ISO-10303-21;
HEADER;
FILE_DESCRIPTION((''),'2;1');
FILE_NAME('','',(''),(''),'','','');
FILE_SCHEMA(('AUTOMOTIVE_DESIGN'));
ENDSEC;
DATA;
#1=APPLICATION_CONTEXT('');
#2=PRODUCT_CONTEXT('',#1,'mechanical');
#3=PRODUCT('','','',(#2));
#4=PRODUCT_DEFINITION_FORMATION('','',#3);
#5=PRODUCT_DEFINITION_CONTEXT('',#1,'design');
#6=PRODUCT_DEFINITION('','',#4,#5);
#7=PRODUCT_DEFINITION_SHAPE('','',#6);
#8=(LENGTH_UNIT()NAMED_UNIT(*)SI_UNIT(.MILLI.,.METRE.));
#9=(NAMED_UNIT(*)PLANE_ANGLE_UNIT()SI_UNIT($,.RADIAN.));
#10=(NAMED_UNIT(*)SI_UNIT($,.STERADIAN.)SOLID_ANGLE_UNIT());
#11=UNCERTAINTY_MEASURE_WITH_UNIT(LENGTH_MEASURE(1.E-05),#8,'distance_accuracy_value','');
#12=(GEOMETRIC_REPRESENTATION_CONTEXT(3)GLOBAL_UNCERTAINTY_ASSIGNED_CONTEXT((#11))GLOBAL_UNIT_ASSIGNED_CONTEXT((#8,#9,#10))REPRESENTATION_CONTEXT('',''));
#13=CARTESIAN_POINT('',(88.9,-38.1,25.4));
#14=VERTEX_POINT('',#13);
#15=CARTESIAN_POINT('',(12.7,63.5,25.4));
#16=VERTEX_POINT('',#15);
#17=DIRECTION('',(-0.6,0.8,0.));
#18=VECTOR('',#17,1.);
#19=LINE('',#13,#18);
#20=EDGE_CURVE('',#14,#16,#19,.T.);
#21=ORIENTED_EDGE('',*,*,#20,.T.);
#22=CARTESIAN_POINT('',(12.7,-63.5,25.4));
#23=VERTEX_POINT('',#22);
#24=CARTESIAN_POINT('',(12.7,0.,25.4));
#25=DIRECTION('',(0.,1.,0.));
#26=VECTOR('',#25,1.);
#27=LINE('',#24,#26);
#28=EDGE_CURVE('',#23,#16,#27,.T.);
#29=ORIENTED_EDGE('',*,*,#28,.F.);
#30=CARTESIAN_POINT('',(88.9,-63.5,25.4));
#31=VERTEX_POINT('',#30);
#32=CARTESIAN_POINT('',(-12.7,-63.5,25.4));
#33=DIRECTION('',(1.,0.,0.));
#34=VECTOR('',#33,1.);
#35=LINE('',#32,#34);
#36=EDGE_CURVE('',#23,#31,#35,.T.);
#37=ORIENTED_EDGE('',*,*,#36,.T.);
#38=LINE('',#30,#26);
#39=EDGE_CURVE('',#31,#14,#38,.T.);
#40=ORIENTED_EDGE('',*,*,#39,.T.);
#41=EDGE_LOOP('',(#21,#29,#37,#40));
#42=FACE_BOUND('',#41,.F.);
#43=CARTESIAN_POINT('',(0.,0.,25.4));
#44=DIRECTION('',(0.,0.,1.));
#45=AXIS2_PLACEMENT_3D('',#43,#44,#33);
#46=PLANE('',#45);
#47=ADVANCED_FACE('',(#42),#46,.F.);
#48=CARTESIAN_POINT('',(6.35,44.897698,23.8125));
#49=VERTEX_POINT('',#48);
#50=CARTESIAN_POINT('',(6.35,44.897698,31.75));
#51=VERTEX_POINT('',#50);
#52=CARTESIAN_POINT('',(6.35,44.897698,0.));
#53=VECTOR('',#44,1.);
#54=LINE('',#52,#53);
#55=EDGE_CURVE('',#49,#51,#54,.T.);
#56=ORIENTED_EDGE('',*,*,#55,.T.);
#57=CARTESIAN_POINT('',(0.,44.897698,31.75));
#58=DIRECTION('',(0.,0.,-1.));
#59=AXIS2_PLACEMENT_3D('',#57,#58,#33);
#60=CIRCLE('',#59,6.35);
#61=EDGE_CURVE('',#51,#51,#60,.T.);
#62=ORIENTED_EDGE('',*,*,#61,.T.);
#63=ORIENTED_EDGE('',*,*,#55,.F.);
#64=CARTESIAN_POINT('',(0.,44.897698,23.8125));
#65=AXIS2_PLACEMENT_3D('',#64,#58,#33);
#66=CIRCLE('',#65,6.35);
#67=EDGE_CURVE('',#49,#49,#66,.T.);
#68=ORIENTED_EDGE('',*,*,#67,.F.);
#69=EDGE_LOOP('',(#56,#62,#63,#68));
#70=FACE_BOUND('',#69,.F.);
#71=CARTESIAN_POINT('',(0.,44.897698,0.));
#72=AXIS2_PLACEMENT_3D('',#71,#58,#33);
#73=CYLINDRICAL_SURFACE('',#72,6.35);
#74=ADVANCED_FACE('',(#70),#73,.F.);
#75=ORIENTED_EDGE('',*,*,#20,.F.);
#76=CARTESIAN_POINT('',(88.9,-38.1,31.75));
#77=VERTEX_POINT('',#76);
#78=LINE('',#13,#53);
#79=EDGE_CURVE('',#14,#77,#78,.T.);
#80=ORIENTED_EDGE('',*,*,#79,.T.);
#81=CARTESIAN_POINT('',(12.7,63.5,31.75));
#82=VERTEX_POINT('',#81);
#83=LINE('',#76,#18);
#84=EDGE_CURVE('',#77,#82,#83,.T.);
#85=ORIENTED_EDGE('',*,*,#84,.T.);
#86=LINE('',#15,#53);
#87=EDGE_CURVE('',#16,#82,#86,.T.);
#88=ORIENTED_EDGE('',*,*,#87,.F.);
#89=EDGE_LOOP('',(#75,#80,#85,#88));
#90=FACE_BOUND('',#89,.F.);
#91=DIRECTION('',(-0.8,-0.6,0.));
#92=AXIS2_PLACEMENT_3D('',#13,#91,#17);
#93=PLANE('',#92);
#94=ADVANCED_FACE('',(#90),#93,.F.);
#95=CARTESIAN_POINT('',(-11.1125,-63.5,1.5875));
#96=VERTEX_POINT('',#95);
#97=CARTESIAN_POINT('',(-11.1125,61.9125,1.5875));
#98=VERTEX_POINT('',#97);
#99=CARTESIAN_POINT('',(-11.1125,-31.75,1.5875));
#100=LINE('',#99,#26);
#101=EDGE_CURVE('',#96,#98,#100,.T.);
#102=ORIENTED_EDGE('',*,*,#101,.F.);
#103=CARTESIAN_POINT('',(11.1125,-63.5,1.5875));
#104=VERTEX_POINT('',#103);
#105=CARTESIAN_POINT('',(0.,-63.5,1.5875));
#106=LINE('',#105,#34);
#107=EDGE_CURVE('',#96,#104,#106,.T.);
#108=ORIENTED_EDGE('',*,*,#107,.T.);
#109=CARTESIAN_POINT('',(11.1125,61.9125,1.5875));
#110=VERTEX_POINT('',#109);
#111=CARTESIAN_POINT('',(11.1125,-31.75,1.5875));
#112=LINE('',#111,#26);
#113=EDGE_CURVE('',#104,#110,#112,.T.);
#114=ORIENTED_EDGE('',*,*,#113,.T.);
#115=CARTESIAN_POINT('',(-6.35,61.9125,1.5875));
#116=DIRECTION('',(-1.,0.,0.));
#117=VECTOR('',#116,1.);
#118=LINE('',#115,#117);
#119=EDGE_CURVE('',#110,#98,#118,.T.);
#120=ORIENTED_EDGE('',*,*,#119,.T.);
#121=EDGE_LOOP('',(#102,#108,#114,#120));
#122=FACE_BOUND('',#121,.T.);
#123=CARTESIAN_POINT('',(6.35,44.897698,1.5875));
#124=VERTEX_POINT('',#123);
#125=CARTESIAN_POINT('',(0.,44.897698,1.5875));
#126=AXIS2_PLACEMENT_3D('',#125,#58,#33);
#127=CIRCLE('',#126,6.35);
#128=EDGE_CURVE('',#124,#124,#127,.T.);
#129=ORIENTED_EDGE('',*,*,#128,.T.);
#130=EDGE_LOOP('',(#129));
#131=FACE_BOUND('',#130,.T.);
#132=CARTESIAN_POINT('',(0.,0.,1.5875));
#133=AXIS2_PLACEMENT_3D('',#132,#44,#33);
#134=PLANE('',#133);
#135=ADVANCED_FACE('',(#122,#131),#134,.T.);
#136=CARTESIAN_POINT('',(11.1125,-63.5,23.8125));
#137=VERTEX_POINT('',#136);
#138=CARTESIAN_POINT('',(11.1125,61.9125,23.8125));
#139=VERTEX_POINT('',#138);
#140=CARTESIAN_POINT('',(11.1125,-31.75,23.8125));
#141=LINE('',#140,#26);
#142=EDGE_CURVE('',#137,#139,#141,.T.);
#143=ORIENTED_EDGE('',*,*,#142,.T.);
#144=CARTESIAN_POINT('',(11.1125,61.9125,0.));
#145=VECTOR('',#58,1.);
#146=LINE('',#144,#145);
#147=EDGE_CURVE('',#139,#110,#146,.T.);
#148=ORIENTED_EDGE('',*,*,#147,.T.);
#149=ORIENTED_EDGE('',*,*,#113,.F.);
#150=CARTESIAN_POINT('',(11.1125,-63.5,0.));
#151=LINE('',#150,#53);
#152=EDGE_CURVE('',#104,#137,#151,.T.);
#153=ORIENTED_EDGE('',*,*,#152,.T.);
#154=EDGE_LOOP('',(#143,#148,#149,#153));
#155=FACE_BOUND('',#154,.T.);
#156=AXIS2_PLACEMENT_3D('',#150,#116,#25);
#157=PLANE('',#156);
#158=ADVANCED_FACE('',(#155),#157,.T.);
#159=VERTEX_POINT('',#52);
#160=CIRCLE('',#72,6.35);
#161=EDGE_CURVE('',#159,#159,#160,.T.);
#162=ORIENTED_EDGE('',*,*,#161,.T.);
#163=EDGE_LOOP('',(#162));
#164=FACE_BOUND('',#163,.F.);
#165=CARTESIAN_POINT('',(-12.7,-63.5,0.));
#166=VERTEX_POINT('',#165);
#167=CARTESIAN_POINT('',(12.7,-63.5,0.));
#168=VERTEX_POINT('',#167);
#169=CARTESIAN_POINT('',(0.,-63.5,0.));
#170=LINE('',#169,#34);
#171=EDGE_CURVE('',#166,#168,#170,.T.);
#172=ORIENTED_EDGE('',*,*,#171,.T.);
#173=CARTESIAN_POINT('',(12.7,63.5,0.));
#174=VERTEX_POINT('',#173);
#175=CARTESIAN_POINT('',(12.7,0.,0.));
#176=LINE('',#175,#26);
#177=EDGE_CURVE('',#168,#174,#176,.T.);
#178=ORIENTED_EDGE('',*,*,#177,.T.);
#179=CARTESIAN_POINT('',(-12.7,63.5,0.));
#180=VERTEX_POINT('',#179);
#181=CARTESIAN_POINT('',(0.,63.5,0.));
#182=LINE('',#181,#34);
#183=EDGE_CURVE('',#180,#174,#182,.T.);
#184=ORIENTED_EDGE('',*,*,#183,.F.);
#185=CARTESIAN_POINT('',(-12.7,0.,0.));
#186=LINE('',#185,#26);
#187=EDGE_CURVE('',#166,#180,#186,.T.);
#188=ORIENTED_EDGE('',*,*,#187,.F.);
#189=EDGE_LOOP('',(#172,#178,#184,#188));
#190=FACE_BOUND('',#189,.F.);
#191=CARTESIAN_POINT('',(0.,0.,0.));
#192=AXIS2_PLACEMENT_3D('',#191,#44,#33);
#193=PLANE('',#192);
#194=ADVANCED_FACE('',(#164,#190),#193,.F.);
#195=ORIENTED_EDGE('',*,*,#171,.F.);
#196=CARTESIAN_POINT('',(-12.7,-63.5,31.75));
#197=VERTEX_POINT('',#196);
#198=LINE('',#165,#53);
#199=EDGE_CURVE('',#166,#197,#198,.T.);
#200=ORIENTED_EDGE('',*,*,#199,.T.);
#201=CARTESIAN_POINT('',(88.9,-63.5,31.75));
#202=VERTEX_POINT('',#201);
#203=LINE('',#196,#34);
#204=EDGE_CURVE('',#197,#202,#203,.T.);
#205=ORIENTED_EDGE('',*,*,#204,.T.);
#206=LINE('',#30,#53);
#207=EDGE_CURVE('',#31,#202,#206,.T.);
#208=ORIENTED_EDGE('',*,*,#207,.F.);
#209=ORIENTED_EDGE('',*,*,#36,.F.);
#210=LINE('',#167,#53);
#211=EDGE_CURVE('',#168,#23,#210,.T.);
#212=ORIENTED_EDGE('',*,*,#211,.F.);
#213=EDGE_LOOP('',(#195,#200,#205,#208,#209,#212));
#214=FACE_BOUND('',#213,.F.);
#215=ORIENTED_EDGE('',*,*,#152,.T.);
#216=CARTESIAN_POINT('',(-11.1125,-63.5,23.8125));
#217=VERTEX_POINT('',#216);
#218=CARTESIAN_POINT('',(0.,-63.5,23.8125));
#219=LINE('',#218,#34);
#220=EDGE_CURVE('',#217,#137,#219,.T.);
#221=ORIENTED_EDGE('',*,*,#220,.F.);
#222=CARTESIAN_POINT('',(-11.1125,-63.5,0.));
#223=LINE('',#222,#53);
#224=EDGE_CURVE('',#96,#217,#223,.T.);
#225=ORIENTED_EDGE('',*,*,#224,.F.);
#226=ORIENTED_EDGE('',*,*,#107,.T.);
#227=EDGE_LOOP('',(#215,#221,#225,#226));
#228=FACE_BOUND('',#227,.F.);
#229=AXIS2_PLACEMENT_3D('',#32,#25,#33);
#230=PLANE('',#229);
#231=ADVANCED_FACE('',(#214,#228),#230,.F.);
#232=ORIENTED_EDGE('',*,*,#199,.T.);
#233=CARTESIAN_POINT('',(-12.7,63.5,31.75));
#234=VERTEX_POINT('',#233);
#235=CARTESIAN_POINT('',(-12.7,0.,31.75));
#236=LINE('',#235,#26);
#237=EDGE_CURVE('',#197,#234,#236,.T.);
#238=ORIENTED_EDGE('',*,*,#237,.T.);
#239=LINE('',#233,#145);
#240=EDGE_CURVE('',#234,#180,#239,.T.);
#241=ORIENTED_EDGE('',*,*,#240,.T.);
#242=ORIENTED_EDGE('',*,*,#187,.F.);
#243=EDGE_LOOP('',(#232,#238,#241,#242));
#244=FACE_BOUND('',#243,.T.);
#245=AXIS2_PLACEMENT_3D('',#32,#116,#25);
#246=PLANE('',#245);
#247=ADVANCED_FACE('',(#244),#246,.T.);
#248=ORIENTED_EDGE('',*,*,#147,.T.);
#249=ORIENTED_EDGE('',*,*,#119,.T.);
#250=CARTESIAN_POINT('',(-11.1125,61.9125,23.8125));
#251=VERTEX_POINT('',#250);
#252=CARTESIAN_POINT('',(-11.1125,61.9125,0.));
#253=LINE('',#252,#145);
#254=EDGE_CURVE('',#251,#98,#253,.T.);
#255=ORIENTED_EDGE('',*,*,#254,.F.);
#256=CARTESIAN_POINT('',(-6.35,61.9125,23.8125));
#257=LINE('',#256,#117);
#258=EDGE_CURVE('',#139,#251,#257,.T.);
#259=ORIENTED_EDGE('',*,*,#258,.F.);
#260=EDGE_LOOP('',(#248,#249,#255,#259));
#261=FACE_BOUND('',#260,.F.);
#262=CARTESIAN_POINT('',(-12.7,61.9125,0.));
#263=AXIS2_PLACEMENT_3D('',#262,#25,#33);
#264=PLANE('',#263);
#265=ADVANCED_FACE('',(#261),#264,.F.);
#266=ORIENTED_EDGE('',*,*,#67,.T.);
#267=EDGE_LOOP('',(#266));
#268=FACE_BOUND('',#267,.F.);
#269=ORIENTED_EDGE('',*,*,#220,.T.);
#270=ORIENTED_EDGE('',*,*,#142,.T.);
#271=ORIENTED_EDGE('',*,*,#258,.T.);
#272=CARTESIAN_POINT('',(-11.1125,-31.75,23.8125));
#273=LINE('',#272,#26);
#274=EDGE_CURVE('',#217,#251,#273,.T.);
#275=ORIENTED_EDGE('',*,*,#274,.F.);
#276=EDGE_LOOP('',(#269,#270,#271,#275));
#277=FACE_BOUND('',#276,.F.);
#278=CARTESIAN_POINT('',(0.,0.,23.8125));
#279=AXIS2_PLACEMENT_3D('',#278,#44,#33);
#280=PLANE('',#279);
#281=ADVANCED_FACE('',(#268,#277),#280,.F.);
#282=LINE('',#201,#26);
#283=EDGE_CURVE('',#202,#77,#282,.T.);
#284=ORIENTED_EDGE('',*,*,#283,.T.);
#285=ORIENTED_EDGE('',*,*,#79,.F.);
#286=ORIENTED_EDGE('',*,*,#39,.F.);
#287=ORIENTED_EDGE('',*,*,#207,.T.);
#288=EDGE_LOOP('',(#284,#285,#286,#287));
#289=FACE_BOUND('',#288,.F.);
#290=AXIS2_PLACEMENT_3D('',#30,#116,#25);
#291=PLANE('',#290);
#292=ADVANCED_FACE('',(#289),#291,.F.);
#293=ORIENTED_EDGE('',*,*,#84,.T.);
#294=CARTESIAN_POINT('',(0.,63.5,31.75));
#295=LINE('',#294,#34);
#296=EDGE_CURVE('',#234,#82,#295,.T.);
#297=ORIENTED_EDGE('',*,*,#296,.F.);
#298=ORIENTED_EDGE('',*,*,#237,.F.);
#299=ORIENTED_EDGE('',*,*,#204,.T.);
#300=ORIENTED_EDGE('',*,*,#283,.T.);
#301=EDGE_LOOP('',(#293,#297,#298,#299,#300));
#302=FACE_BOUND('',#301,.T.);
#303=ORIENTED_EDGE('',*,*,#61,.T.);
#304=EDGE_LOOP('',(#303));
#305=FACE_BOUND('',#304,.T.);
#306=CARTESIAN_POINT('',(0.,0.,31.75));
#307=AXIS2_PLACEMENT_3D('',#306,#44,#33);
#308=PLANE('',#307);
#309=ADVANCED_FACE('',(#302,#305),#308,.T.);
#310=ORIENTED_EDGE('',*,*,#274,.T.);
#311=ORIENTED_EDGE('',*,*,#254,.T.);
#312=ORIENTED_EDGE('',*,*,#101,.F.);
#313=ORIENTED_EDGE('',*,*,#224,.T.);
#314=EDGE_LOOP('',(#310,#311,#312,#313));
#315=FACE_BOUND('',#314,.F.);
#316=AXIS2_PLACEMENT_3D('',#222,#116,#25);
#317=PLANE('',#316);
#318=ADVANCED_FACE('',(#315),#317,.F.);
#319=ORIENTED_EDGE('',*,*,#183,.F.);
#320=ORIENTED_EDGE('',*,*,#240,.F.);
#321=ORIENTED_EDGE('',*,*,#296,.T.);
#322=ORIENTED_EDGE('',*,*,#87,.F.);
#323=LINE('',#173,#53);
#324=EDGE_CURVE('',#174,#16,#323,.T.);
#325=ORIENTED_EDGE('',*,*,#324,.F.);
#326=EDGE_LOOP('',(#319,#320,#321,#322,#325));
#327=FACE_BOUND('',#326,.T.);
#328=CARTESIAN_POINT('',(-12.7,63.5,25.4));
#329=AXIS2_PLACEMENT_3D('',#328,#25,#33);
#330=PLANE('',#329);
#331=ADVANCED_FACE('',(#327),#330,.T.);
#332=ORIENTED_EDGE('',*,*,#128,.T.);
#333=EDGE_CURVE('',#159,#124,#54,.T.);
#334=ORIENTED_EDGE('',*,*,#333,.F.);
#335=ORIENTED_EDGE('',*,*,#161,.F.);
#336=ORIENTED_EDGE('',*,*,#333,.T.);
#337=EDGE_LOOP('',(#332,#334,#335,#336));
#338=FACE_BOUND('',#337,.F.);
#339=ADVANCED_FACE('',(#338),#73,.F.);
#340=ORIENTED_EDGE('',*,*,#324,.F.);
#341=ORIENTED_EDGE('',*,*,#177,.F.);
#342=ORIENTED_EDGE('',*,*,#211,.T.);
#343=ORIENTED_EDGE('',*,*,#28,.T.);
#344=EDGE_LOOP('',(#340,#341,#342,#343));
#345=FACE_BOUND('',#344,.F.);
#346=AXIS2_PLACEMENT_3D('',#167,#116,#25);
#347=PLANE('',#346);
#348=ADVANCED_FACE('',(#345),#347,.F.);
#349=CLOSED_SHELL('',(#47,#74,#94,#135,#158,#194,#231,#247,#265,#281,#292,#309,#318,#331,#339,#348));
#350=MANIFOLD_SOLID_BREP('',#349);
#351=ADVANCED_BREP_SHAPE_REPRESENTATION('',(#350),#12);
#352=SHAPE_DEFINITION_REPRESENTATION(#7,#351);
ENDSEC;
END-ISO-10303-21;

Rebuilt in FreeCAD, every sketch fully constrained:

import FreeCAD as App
import Part
import Sketcher
from FreeCAD import Vector
Q = App.Units.Quantity


def faces_at(feature, points):
    """Names of the faces that lie closest to the given points."""
    faces = feature.Shape.Faces
    near = lambda p: min(range(len(faces)), key=lambda i: faces[i].distToShape(Part.Vertex(*p))[0])
    return sorted({f"Face{near(p) + 1}" for p in points})

doc = App.newDocument("Part")
body = doc.addObject("PartDesign::Body", "Body")

sketch1 = body.newObject("Sketcher::SketchObject", "Sketch")
sketch1.AttachmentSupport = (doc.getObject("XY_Plane"), [""])
sketch1.MapMode = "FlatFace"
sketch1.addGeometry([
    Part.LineSegment(Vector(-13, 64, 0), Vector(-13, -64, 0)),
    Part.LineSegment(Vector(-13, -64, 0), Vector(13, -64, 0)),
    Part.LineSegment(Vector(13, -64, 0), Vector(13, 64, 0)),
    Part.LineSegment(Vector(13, 64, 0), Vector(-13, 64, 0)),
], False)
sketch1.addConstraint([
    Sketcher.Constraint("Coincident", 0, 2, 1, 1),
    Sketcher.Constraint("Coincident", 1, 2, 2, 1),
    Sketcher.Constraint("Coincident", 2, 2, 3, 1),
    Sketcher.Constraint("Coincident", 3, 2, 0, 1),
    Sketcher.Constraint("Vertical", 0),
    Sketcher.Constraint("Horizontal", 1),
    Sketcher.Constraint("Vertical", 2),
    Sketcher.Constraint("Horizontal", 3),
    Sketcher.Constraint("Symmetric", 0, 2, 2, 2, -1, 1),
    Sketcher.Constraint("DistanceX", 1, 1, 1, 2, Q("1 in")),
    Sketcher.Constraint("DistanceY", 0, 2, 0, 1, Q("5 in")),
])
pad1 = body.newObject("PartDesign::Pad", "Pad")
pad1.Profile = sketch1
pad1.Length = Q("1 in")
doc.recompute()

thickness = body.newObject("PartDesign::Thickness", "Thickness")
thickness.Base = (pad1, faces_at(pad1, [(0, -63.5, 12.7)]))
thickness.Value = Q("0.0625 in")
thickness.Reversed = True
thickness.Join = "Arc"

sketch2 = body.newObject("Sketcher::SketchObject", "Sketch001")
sketch2.AttachmentSupport = (doc.getObject("XY_Plane"), [""])
sketch2.MapMode = "FlatFace"
sketch2.AttachmentOffset = App.Placement(Vector(0, 0, 1 * 25.4), App.Rotation())
sketch2.addGeometry([
    Part.LineSegment(Vector(-13, 64, 0), Vector(-13, -64, 0)),
    Part.LineSegment(Vector(-13, -64, 0), Vector(89, -64, 0)),
    Part.LineSegment(Vector(89, -64, 0), Vector(89, -38, 0)),
    Part.LineSegment(Vector(89, -38, 0), Vector(13, 64, 0)),
    Part.LineSegment(Vector(13, 64, 0), Vector(-13, 64, 0)),
], False)
sketch2.addConstraint([
    Sketcher.Constraint("Coincident", 0, 2, 1, 1),
    Sketcher.Constraint("Coincident", 1, 2, 2, 1),
    Sketcher.Constraint("Coincident", 2, 2, 3, 1),
    Sketcher.Constraint("Coincident", 3, 2, 4, 1),
    Sketcher.Constraint("Coincident", 4, 2, 0, 1),
    Sketcher.Constraint("Vertical", 0),
    Sketcher.Constraint("Horizontal", 1),
    Sketcher.Constraint("Vertical", 2),
    Sketcher.Constraint("Horizontal", 4),
    Sketcher.Constraint("Symmetric", 0, 2, 3, 2, -1, 1),
    Sketcher.Constraint("Equal", 4, 2),
    Sketcher.Constraint("DistanceX", 1, 1, 1, 2, Q("4 in")),
    Sketcher.Constraint("DistanceX", 4, 2, 4, 1, Q("1 in")),
    Sketcher.Constraint("DistanceY", 0, 2, 0, 1, Q("5 in")),
])
pad2 = body.newObject("PartDesign::Pad", "Pad001")
pad2.Profile = sketch2
pad2.Length = Q("0.25 in")

sketch3 = body.newObject("Sketcher::SketchObject", "Sketch002")
sketch3.AttachmentSupport = (doc.getObject("XY_Plane"), [""])
sketch3.MapMode = "FlatFace"
sketch3.addGeometry(Part.Circle(Vector(0, 45, 0), Vector(0, 0, 1), 6), False)
sketch3.addConstraint([
    Sketcher.Constraint("PointOnObject", 0, 3, -2),
    Sketcher.Constraint("Diameter", 0, Q("0.5 in")),
    Sketcher.Constraint("DistanceY", -1, 1, 0, 3, Q("44.897698 mm")),
])
pocket1 = body.newObject("PartDesign::Pocket", "Pocket")
pocket1.Profile = sketch3
pocket1.Type = "ThroughAll"
pocket1.Reversed = True

doc.recompute()
